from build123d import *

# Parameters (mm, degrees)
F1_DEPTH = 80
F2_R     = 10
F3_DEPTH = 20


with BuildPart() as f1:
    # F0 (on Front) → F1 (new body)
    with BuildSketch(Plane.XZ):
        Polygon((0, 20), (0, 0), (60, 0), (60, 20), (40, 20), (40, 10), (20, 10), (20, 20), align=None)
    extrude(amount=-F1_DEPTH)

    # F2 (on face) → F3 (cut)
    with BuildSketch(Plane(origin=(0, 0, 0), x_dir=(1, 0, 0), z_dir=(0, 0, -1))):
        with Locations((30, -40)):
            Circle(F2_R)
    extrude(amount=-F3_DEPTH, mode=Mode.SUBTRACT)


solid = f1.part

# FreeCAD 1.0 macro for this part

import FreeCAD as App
import Part
import Sketcher
from FreeCAD import Vector
Q = App.Units.Quantity

doc = App.newDocument("Part")
body = doc.addObject("PartDesign::Body", "Body")

# Sketch on XZ plane
sketch1 = body.newObject("Sketcher::SketchObject", "Sketch")
sketch1.AttachmentSupport = (doc.getObject("XZ_Plane"), [""])
sketch1.MapMode = "FlatFace"
sketch1.addGeometry([
    Part.LineSegment(Vector(0, 20, 0), Vector(0, 0, 0)),  # 0
    Part.LineSegment(Vector(0, 0, 0), Vector(60, 0, 0)),  # 1
    Part.LineSegment(Vector(60, 0, 0), Vector(60, 20, 0)),  # 2
    Part.LineSegment(Vector(60, 20, 0), Vector(40, 20, 0)),  # 3
    Part.LineSegment(Vector(40, 20, 0), Vector(40, 10, 0)),  # 4
    Part.LineSegment(Vector(40, 10, 0), Vector(20, 10, 0)),  # 5
    Part.LineSegment(Vector(20, 10, 0), Vector(20, 20, 0)),  # 6
    Part.LineSegment(Vector(20, 20, 0), Vector(0, 20, 0)),  # 7
], False)
sketch1.addConstraint([
    Sketcher.Constraint("Coincident", 0, 2, 1, 1),
    Sketcher.Constraint("Coincident", 1, 2, 2, 1),
    Sketcher.Constraint("Coincident", 2, 2, 3, 1),
    Sketcher.Constraint("Coincident", 3, 2, 4, 1),
    Sketcher.Constraint("Coincident", 4, 2, 5, 1),
    Sketcher.Constraint("Coincident", 5, 2, 6, 1),
    Sketcher.Constraint("Coincident", 6, 2, 7, 1),
    Sketcher.Constraint("Coincident", 7, 2, 0, 1),
    Sketcher.Constraint("Vertical", 0),
    Sketcher.Constraint("Horizontal", 1),
    Sketcher.Constraint("Vertical", 2),
    Sketcher.Constraint("Horizontal", 3),
    Sketcher.Constraint("Vertical", 4),
    Sketcher.Constraint("Horizontal", 5),
    Sketcher.Constraint("Vertical", 6),
    Sketcher.Constraint("Horizontal", 7),
    Sketcher.Constraint("Coincident", 0, 2, -1, 1),
    Sketcher.Constraint("Horizontal", 3, 2, 6, 2),
    Sketcher.Constraint("Equal", 3, 5),
    Sketcher.Constraint("Equal", 5, 7),
    Sketcher.Constraint("Equal", 7, 0),
    Sketcher.Constraint("DistanceX", 1, 1, 1, 2, Q("60 mm")),
    Sketcher.Constraint("DistanceY", 4, 2, 4, 1, Q("10 mm")),
])
pad1 = body.newObject("PartDesign::Pad", "Pad")
pad1.Profile = sketch1
pad1.Length = 80
pad1.Reversed = True

# Sketch on XY plane
sketch2 = body.newObject("Sketcher::SketchObject", "Sketch001")
sketch2.AttachmentSupport = (doc.getObject("XY_Plane"), [""])
sketch2.MapMode = "FlatFace"
sketch2.addGeometry(Part.Circle(Vector(30, 40, 0), Vector(0, 0, 1), 10), False)
sketch2.addConstraint([
    Sketcher.Constraint("Diameter", 0, Q("20 mm")),
    Sketcher.Constraint("DistanceX", -1, 1, 0, 3, Q("30 mm")),
    Sketcher.Constraint("DistanceY", -1, 1, 0, 3, Q("40 mm")),
])
pocket1 = body.newObject("PartDesign::Pocket", "Pocket")
pocket1.Profile = sketch2
pocket1.Length = 20
pocket1.Reversed = True

doc.recompute()
